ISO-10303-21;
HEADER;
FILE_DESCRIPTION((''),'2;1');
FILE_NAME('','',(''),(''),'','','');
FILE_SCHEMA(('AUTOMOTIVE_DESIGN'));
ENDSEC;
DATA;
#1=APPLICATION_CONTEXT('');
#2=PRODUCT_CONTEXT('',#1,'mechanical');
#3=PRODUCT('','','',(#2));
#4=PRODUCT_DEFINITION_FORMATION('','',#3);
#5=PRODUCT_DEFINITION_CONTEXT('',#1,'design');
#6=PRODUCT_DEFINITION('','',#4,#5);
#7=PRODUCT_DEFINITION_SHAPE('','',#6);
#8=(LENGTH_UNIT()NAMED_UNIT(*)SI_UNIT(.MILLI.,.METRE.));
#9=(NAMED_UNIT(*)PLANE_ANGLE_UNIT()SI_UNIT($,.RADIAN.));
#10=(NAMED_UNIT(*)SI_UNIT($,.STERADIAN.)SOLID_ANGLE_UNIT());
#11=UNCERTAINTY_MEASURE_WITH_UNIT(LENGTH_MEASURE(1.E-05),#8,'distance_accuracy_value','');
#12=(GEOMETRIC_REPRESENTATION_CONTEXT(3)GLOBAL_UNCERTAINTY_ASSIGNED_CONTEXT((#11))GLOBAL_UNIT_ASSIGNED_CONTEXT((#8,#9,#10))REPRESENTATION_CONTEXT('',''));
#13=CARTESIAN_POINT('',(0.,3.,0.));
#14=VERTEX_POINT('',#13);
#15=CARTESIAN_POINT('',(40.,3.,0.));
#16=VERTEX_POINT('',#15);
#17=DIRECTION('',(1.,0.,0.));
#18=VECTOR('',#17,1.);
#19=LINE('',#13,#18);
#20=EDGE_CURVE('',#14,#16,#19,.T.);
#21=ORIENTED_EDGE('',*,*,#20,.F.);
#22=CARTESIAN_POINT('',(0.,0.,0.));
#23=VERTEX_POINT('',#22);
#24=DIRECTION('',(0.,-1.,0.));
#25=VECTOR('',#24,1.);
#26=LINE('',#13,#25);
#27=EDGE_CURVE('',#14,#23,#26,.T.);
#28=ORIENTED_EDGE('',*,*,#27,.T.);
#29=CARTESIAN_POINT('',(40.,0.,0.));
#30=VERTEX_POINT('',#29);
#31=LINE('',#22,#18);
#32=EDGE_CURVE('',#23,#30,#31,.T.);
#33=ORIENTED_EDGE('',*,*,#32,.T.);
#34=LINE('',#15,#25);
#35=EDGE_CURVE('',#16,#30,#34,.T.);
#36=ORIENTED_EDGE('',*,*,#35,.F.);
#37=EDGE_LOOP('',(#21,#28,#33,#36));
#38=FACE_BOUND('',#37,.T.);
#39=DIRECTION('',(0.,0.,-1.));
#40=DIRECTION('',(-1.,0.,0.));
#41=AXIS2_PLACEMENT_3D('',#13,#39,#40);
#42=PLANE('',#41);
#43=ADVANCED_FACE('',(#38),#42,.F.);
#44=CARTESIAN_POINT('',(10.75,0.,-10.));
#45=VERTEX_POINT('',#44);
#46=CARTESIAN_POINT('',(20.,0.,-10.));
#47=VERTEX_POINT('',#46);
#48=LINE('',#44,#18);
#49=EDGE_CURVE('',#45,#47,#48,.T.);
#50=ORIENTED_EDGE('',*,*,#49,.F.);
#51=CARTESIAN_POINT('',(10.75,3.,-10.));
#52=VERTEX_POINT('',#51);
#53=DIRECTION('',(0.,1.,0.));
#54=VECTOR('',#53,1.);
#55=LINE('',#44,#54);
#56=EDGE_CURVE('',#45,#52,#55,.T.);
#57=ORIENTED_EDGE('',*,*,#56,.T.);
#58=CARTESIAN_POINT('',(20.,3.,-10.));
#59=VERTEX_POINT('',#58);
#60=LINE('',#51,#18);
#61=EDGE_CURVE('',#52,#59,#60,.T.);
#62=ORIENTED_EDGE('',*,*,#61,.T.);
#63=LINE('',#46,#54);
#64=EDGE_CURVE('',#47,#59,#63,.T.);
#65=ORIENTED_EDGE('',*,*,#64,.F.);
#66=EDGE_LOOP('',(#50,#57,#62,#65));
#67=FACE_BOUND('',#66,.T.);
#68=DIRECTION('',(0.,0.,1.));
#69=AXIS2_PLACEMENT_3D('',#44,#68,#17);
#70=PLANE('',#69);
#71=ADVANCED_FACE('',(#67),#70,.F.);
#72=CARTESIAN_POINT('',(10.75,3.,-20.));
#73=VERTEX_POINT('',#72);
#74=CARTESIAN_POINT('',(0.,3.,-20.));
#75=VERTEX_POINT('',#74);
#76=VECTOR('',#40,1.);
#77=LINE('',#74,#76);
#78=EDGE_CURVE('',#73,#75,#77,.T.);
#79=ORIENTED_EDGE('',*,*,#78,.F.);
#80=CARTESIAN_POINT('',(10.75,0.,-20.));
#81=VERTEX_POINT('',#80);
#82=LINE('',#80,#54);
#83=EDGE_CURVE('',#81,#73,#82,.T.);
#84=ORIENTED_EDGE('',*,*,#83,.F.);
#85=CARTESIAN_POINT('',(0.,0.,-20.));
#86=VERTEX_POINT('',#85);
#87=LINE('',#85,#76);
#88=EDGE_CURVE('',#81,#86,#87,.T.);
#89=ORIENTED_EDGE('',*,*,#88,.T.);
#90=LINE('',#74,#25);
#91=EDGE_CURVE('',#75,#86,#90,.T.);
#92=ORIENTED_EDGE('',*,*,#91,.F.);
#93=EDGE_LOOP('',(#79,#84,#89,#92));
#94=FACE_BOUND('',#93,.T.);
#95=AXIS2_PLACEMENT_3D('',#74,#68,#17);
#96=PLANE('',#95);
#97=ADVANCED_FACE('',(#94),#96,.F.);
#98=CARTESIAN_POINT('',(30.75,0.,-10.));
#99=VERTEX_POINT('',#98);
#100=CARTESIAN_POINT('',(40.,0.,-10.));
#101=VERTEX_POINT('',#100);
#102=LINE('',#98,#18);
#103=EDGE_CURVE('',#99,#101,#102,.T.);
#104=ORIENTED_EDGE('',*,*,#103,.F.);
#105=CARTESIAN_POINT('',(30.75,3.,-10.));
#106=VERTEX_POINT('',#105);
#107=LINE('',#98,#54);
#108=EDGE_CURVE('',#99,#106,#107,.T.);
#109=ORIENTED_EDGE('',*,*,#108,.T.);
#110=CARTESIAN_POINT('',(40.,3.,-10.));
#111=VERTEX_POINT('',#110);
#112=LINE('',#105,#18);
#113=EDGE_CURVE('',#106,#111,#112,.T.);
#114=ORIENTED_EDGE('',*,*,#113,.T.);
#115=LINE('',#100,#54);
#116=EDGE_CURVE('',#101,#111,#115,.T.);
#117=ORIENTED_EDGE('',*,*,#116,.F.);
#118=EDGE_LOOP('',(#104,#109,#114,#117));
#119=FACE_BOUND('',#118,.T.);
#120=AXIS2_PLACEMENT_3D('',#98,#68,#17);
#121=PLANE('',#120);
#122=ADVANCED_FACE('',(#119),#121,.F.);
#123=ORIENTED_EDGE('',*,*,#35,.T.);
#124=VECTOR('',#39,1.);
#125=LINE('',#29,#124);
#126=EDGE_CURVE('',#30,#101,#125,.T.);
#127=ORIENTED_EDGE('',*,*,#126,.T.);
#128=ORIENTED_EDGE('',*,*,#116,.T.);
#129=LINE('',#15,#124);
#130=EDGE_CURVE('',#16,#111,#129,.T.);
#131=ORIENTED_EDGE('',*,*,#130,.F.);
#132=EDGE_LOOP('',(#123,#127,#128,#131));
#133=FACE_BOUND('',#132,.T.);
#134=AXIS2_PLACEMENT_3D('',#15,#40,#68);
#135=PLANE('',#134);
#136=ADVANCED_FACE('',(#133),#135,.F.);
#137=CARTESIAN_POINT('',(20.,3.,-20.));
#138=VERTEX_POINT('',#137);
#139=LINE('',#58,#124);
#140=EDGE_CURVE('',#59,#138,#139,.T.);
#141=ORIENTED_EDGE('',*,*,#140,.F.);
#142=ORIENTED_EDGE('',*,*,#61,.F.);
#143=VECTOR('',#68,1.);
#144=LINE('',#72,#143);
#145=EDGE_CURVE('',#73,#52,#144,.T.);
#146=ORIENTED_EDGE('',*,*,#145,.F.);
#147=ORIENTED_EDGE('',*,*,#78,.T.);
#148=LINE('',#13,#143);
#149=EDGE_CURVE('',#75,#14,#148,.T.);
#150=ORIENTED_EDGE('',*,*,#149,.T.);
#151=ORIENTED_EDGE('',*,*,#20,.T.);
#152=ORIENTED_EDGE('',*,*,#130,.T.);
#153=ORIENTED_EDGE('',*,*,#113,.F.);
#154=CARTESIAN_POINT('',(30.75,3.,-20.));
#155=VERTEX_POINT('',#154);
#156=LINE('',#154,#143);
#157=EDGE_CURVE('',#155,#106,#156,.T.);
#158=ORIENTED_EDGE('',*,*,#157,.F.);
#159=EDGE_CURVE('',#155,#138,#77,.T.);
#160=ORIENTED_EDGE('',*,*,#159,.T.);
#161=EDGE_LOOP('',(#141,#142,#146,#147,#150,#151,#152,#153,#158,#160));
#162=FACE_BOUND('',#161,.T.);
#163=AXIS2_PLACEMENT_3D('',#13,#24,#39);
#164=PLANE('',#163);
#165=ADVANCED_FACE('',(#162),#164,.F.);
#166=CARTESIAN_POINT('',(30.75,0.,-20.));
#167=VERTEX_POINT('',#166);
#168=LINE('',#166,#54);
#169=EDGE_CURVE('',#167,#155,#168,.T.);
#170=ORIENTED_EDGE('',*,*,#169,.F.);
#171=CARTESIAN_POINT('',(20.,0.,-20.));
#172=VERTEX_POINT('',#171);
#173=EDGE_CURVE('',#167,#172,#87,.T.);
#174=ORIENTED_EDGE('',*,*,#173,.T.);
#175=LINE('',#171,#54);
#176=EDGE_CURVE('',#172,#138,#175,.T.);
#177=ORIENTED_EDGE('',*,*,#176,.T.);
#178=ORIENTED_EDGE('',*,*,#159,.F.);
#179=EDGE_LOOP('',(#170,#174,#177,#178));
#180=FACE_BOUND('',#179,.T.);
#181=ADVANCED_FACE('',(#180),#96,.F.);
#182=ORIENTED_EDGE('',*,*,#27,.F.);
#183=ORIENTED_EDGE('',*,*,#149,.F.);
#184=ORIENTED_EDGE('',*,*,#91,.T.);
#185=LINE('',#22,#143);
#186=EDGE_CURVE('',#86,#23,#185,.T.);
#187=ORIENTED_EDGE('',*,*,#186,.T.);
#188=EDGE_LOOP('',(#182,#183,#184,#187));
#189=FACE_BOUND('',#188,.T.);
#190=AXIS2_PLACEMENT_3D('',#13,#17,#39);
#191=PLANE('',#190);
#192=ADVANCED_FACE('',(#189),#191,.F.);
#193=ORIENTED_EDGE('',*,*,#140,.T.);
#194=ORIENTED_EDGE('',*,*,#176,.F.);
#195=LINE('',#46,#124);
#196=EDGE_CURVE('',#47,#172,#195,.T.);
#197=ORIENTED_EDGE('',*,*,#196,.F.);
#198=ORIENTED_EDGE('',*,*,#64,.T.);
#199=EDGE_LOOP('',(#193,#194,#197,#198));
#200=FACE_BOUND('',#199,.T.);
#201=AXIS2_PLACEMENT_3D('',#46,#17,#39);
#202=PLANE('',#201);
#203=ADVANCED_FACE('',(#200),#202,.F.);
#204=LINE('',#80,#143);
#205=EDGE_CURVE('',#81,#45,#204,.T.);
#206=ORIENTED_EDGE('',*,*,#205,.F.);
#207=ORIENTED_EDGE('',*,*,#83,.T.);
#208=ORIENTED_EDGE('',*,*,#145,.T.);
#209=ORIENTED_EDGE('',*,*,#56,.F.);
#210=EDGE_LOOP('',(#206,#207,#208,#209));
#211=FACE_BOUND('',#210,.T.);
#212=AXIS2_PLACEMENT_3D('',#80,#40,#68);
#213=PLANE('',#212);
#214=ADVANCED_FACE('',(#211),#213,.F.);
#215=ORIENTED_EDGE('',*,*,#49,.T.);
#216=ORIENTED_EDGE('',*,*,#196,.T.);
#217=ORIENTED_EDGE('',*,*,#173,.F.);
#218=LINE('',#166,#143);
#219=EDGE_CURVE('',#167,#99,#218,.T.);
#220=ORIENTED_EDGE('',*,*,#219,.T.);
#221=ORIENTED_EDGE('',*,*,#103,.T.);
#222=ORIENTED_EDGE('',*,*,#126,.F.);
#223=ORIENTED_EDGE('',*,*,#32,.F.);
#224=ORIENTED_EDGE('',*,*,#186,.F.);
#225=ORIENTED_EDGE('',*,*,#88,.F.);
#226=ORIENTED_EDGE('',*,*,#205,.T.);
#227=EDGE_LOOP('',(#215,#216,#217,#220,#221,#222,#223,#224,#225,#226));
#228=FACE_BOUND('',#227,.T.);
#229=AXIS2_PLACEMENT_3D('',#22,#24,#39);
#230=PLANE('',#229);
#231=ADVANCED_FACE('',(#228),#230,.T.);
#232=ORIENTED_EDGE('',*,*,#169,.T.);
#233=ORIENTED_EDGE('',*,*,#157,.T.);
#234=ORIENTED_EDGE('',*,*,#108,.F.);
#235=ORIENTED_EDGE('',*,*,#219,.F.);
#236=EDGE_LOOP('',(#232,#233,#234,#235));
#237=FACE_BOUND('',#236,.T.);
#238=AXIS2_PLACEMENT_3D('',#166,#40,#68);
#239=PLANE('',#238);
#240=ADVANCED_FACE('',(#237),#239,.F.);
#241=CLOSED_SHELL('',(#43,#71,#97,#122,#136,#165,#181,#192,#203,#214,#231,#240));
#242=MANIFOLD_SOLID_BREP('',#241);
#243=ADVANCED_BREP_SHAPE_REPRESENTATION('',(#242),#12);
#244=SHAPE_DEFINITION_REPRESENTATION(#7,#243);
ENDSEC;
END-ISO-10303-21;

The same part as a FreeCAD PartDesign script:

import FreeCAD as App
import Part
import Sketcher
Q = App.Units.Quantity

doc = App.newDocument("Part")
params = doc.addObject("Spreadsheet::Sheet", "Params")
for row, (alias, value) in enumerate([
    ("sketch1_width", "40 mm"),
    ("sketch1_height", "20 mm"),
    ("pad1_length", "3 mm"),
    ("sketch2_height", "10 mm"),
    ("sketch2_width", "9.25 mm"),
    ("pocket1_length", "3 mm"),
], start=1):
    params.set(f"A{row}", alias)
    params.set(f"B{row}", "=" + value)
    params.setAlias(f"B{row}", alias)

body = doc.addObject("PartDesign::Body", "Body")

# Sketch on XZ plane
sketch1 = body.newObject("Sketcher::SketchObject", "Sketch")
sketch1.AttachmentSupport = (doc.getObject("XZ_Plane"), [""])
sketch1.MapMode = "FlatFace"
sketch1.addGeometry(Part.LineSegment(App.Vector(0, -20, 0), App.Vector(0, 0, 0)), False)
sketch1.addGeometry(Part.LineSegment(App.Vector(0, 0, 0), App.Vector(40, 0, 0)), False)
sketch1.addGeometry(Part.LineSegment(App.Vector(40, 0, 0), App.Vector(40, -20, 0)), False)
sketch1.addGeometry(Part.LineSegment(App.Vector(40, -20, 0), App.Vector(0, -20, 0)), False)
sketch1.addConstraint(Sketcher.Constraint("Coincident", 0, 2, 1, 1))
sketch1.addConstraint(Sketcher.Constraint("Coincident", 1, 2, 2, 1))
sketch1.addConstraint(Sketcher.Constraint("Coincident", 2, 2, 3, 1))
sketch1.addConstraint(Sketcher.Constraint("Coincident", 3, 2, 0, 1))
sketch1.addConstraint(Sketcher.Constraint("Vertical", 0))
sketch1.addConstraint(Sketcher.Constraint("Horizontal", 1))
sketch1.addConstraint(Sketcher.Constraint("Vertical", 2))
sketch1.addConstraint(Sketcher.Constraint("Horizontal", 3))
sketch1.addConstraint(Sketcher.Constraint("Coincident", 0, 2, -1, 1))
sketch1.addConstraint(Sketcher.Constraint("DistanceX", 1, 1, 1, 2, Q("40 mm")))
sketch1.addConstraint(Sketcher.Constraint("DistanceY", 0, 1, 0, 2, Q("20 mm")))
sketch1.setExpression("Constraints[9]", "Params.sketch1_width")
sketch1.setExpression("Constraints[10]", "Params.sketch1_height")
pad1 = body.newObject("PartDesign::Pad", "Pad")
pad1.Profile = sketch1
pad1.setExpression("Length", "Params.pad1_length")
pad1.Reversed = True

# Sketch on XZ plane
sketch2 = body.newObject("Sketcher::SketchObject", "Sketch001")
sketch2.AttachmentSupport = (doc.getObject("XZ_Plane"), [""])
sketch2.MapMode = "FlatFace"
sketch2.AttachmentOffset = App.Placement(App.Vector(0, 0, -3), App.Rotation())
sketch2.addGeometry(Part.LineSegment(App.Vector(11, -20, 0), App.Vector(11, -10, 0)), False)
sketch2.addGeometry(Part.LineSegment(App.Vector(11, -10, 0), App.Vector(20, -10, 0)), False)
sketch2.addGeometry(Part.LineSegment(App.Vector(20, -10, 0), App.Vector(20, -20, 0)), False)
sketch2.addGeometry(Part.LineSegment(App.Vector(20, -20, 0), App.Vector(11, -20, 0)), False)
sketch2.addGeometry(Part.LineSegment(App.Vector(31, -20, 0), App.Vector(31, -10, 0)), False)
sketch2.addGeometry(Part.LineSegment(App.Vector(31, -10, 0), App.Vector(40, -10, 0)), False)
sketch2.addGeometry(Part.LineSegment(App.Vector(40, -10, 0), App.Vector(40, -20, 0)), False)
sketch2.addGeometry(Part.LineSegment(App.Vector(40, -20, 0), App.Vector(31, -20, 0)), False)
sketch2.addConstraint(Sketcher.Constraint("Coincident", 0, 2, 1, 1))
sketch2.addConstraint(Sketcher.Constraint("Coincident", 1, 2, 2, 1))
sketch2.addConstraint(Sketcher.Constraint("Coincident", 2, 2, 3, 1))
sketch2.addConstraint(Sketcher.Constraint("Coincident", 3, 2, 0, 1))
sketch2.addConstraint(Sketcher.Constraint("Coincident", 4, 2, 5, 1))
sketch2.addConstraint(Sketcher.Constraint("Coincident", 5, 2, 6, 1))
sketch2.addConstraint(Sketcher.Constraint("Coincident", 6, 2, 7, 1))
sketch2.addConstraint(Sketcher.Constraint("Coincident", 7, 2, 4, 1))
sketch2.addConstraint(Sketcher.Constraint("Vertical", 0))
sketch2.addConstraint(Sketcher.Constraint("Horizontal", 1))
sketch2.addConstraint(Sketcher.Constraint("Vertical", 2))
sketch2.addConstraint(Sketcher.Constraint("Horizontal", 3))
sketch2.addConstraint(Sketcher.Constraint("Vertical", 4))
sketch2.addConstraint(Sketcher.Constraint("Horizontal", 5))
sketch2.addConstraint(Sketcher.Constraint("Vertical", 6))
sketch2.addConstraint(Sketcher.Constraint("Horizontal", 7))
sketch2.addConstraint(Sketcher.Constraint("Horizontal", 1, 2, 4, 2))
sketch2.addConstraint(Sketcher.Constraint("Horizontal", 3, 2, 6, 2))
sketch2.addConstraint(Sketcher.Constraint("Equal", 3, 5))
sketch2.addConstraint(Sketcher.Constraint("DistanceY", 0, 1, 0, 2, Q("10 mm")))
sketch2.addConstraint(Sketcher.Constraint("DistanceY", 0, 2, -1, 1, Q("10 mm")))
sketch2.addConstraint(Sketcher.Constraint("DistanceX", -1, 1, 1, 2, Q("20 mm")))
sketch2.addConstraint(Sketcher.Constraint("DistanceX", -1, 1, 5, 2, Q("40 mm")))
sketch2.addConstraint(Sketcher.Constraint("DistanceX", 1, 1, 1, 2, Q("9.25 mm")))
sketch2.setExpression("Constraints[19]", "Params.sketch2_height")
sketch2.setExpression("Constraints[23]", "Params.sketch2_width")
pocket1 = body.newObject("PartDesign::Pocket", "Pocket")
pocket1.Profile = sketch2
pocket1.setExpression("Length", "Params.pocket1_length")
pocket1.Reversed = True

doc.recompute()
